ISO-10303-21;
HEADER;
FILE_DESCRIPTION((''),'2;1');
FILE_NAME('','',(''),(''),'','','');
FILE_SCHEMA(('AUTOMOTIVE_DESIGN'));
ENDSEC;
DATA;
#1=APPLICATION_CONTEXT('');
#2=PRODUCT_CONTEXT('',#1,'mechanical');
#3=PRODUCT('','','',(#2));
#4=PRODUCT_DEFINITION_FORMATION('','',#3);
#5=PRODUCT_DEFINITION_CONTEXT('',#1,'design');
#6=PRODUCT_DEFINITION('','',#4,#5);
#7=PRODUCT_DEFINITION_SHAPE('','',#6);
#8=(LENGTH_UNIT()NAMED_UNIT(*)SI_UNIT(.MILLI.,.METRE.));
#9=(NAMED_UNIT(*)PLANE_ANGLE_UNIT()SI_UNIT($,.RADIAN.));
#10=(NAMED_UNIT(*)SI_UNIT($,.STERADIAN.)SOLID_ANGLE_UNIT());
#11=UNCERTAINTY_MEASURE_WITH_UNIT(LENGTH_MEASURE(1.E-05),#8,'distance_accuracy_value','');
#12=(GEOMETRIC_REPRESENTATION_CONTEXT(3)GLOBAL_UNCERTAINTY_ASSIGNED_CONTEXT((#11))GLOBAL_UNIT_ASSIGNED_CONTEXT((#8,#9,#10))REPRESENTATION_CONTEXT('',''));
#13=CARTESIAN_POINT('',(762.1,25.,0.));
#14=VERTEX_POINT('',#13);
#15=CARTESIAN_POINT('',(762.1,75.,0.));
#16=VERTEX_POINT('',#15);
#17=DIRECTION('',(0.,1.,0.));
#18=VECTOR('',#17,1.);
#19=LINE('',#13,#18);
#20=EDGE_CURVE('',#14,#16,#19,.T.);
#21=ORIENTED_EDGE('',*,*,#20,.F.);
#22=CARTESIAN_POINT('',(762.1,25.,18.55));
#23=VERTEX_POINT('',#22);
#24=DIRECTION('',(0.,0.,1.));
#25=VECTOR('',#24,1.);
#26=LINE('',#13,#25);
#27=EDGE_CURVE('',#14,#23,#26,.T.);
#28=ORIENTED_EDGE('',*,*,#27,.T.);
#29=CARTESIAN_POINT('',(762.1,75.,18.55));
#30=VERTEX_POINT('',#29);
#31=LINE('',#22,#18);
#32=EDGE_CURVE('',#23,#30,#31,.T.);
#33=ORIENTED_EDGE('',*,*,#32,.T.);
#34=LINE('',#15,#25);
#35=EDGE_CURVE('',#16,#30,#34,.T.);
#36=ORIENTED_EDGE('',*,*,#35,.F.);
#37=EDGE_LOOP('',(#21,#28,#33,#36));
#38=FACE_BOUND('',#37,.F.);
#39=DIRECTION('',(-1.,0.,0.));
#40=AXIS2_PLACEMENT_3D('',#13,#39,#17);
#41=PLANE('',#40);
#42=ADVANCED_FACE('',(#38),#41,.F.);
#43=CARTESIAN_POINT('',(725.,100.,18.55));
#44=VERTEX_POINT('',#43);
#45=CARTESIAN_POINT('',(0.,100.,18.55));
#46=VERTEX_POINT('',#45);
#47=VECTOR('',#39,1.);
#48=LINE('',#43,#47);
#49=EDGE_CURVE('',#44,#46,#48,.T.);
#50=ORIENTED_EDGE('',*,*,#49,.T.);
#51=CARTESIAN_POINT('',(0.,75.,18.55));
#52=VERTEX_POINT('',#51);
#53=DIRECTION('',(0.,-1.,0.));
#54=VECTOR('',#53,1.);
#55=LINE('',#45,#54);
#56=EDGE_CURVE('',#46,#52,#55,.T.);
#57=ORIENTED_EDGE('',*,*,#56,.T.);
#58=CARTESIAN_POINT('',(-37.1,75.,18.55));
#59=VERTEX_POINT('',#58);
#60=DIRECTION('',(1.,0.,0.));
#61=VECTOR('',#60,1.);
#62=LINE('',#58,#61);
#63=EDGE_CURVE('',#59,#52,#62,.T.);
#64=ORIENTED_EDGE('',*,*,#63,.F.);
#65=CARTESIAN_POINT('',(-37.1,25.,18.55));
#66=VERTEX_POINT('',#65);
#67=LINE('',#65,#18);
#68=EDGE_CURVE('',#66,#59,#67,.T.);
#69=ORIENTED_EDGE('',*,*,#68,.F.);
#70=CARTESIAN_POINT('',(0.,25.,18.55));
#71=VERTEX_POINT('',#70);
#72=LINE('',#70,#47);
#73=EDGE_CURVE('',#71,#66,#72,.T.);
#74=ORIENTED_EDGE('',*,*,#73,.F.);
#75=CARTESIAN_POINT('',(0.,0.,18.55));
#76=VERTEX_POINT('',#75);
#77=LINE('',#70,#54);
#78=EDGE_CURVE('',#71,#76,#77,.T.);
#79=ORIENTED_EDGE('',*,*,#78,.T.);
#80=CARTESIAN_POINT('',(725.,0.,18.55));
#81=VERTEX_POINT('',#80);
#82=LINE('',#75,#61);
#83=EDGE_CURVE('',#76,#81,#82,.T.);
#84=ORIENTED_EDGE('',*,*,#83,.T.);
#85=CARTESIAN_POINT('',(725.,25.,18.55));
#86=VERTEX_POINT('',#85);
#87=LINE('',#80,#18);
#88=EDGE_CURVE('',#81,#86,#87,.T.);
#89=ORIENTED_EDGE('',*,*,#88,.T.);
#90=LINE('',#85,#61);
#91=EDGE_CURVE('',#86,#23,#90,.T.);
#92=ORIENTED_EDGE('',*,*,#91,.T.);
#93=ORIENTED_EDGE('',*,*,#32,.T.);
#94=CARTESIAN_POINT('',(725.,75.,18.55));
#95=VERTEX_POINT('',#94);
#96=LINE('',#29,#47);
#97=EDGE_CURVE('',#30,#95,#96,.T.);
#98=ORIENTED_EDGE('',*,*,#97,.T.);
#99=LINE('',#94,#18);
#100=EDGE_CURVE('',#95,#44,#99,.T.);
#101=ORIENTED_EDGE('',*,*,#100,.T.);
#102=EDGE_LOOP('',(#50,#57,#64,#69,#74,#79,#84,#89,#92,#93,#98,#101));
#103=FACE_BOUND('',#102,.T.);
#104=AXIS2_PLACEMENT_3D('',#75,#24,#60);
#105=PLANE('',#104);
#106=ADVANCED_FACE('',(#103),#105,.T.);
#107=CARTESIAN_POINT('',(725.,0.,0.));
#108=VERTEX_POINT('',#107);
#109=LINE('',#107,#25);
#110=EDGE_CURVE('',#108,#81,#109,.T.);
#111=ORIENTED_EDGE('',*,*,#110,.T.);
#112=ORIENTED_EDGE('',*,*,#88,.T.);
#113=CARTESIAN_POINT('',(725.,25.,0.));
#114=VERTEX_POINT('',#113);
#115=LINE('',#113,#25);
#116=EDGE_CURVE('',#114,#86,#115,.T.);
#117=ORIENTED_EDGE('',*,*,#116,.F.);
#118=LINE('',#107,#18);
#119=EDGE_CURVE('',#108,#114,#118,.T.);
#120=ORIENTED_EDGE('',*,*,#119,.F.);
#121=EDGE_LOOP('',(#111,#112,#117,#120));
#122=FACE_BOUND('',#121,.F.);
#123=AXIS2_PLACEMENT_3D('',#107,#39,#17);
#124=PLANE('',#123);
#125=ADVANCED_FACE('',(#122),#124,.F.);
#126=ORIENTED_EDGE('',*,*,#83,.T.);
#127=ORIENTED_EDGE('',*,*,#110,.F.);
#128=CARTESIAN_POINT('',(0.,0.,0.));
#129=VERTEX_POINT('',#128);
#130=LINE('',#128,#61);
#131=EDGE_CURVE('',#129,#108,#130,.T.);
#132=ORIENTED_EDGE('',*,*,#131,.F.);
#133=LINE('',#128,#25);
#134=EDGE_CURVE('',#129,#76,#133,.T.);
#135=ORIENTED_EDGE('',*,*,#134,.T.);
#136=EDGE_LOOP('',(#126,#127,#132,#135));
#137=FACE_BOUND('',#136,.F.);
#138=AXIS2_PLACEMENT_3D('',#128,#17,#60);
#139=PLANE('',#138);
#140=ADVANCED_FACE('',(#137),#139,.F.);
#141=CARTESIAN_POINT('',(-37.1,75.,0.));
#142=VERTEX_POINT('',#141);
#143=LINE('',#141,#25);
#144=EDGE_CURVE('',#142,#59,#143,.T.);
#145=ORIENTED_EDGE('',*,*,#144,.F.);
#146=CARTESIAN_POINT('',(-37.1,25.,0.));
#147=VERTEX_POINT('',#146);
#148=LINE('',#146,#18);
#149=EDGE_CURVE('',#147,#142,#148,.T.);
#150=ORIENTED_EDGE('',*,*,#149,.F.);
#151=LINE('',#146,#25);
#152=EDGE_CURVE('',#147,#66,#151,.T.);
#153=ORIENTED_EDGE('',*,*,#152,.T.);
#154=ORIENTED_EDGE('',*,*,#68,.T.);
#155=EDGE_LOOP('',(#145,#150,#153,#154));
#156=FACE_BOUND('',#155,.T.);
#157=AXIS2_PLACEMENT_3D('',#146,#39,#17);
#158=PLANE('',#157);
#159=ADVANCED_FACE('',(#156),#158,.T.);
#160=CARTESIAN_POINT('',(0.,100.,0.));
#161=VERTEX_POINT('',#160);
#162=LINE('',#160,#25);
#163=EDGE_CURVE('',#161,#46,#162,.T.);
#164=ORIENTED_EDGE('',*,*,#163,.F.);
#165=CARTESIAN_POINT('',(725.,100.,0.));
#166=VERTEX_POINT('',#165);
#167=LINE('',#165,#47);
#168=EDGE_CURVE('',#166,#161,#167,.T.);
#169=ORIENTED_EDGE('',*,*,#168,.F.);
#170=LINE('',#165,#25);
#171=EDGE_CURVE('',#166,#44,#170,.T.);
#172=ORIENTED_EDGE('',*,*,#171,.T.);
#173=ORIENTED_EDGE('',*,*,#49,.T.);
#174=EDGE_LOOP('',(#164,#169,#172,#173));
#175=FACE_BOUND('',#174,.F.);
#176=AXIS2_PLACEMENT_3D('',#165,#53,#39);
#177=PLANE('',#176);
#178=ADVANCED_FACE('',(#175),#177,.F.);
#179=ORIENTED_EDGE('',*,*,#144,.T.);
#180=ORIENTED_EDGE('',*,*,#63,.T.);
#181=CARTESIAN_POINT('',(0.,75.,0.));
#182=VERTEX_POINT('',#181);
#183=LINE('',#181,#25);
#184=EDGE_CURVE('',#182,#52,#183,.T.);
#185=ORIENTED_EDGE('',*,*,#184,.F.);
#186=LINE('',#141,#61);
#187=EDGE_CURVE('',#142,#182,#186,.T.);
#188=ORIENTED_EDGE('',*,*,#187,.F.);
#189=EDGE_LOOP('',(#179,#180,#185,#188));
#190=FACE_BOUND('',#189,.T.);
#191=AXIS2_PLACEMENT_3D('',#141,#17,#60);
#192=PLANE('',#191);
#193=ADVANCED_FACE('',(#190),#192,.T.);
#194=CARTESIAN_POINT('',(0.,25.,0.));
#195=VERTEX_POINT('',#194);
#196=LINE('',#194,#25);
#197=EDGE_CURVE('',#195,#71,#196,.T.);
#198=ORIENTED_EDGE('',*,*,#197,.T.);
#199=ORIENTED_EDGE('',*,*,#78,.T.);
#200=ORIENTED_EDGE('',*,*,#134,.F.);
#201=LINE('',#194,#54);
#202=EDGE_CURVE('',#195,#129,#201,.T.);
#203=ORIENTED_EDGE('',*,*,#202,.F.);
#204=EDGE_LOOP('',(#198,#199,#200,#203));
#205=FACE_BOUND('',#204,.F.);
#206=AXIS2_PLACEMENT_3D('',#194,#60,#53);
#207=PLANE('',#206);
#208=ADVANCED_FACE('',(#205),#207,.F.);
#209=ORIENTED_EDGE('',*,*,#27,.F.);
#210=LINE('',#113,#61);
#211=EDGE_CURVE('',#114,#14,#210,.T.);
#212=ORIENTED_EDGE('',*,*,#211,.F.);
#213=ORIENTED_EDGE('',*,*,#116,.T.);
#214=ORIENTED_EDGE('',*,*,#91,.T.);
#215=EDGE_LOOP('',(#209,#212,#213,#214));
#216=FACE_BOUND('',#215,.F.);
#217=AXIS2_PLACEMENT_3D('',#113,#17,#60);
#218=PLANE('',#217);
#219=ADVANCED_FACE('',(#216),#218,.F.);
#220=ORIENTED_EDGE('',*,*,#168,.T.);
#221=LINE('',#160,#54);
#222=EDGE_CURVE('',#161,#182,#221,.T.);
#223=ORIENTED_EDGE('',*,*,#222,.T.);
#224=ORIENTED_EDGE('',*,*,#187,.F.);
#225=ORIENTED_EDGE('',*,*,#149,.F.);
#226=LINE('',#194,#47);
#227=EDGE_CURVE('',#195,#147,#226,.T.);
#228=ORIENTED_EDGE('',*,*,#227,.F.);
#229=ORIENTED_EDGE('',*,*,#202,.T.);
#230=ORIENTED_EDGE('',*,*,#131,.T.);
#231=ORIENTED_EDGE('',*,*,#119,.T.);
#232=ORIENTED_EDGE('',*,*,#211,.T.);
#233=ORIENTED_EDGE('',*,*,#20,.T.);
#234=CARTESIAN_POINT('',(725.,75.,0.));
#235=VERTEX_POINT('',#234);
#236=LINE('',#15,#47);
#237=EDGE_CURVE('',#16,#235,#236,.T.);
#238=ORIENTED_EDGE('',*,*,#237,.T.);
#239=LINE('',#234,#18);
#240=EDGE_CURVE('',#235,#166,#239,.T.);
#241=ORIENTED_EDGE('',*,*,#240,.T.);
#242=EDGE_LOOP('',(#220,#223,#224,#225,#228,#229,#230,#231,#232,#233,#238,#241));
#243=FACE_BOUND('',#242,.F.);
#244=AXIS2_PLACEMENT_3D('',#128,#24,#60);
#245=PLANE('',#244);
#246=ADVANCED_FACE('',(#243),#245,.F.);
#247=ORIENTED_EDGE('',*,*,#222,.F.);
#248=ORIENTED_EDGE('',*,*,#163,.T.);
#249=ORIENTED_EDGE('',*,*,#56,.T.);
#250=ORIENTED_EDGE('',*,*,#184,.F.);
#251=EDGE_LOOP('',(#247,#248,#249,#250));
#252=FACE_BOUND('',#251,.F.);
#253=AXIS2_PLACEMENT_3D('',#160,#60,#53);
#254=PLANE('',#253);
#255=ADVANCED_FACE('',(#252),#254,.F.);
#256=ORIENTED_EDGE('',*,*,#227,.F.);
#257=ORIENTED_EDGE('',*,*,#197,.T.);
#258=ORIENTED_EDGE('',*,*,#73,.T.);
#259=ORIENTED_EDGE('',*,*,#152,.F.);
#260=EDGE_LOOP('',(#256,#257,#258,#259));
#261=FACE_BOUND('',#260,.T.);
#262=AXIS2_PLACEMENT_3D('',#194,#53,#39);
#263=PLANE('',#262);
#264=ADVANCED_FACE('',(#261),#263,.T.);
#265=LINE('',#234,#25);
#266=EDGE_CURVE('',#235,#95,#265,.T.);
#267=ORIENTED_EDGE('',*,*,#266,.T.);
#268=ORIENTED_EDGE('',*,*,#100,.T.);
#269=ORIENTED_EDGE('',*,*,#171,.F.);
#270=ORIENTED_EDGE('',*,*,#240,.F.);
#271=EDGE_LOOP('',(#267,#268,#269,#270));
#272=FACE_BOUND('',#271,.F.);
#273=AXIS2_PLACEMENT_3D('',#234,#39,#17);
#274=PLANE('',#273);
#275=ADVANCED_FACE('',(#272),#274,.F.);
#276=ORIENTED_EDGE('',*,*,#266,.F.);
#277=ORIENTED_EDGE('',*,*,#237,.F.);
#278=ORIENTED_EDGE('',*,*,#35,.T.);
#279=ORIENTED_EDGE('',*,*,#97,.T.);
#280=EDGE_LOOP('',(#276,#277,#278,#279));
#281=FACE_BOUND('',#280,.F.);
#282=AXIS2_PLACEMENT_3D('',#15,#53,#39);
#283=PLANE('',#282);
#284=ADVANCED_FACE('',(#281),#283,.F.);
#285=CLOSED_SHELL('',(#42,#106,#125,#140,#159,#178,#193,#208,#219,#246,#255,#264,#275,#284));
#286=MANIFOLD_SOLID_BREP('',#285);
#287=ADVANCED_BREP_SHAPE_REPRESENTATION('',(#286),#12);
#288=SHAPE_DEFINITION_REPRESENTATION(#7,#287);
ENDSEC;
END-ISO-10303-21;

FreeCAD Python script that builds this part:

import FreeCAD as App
import Part
import Sketcher


def add_polygon(sketch, points):
    """Adds a closed chain of lines whose ends are joined by coincident constraints."""
    first, n = sketch.GeometryCount, len(points)
    for a, b in zip(points, points[1:] + points[:1]):
        sketch.addGeometry(Part.LineSegment(App.Vector(*a, 0), App.Vector(*b, 0)), False)
    for i in range(n):
        sketch.addConstraint(Sketcher.Constraint("Coincident", first + i, 2, first + (i + 1) % n, 1))

doc = App.newDocument("Part")
body = doc.addObject("PartDesign::Body", "Body")

# Sketch on XY plane
sketch1 = doc.addObject("Sketcher::SketchObject", "Sketch")
body.addObject(sketch1)
sketch1.AttachmentSupport = (doc.XY_Plane, [""])
sketch1.MapMode = "FlatFace"
add_polygon(sketch1, [(0, 25), (0, 0), (725, 0), (725, 25), (762, 25), (762, 75), (725, 75), (725, 100), (0, 100), (0, 75), (-37, 75), (-37, 25)])  # lines 0-11
sketch1.addConstraint([
    Sketcher.Constraint("Vertical", 0),
    Sketcher.Constraint("Horizontal", 1),
    Sketcher.Constraint("Vertical", 2),
    Sketcher.Constraint("Horizontal", 3),
    Sketcher.Constraint("Vertical", 4),
    Sketcher.Constraint("Horizontal", 5),
    Sketcher.Constraint("Vertical", 6),
    Sketcher.Constraint("Horizontal", 7),
    Sketcher.Constraint("Vertical", 8),
    Sketcher.Constraint("Horizontal", 9),
    Sketcher.Constraint("Vertical", 10),
    Sketcher.Constraint("Horizontal", 11),
    Sketcher.Constraint("Coincident", 0, 2, -1, 1),
    Sketcher.Constraint("PointOnObject", 7, 2, -2),
    Sketcher.Constraint("Horizontal", 5, 2, 8, 2),
    Sketcher.Constraint("Horizontal", 3, 2, 10, 2),
    Sketcher.Constraint("Vertical", 2, 2, 5, 2),
    Sketcher.Constraint("Equal", 5, 9),
    Sketcher.Constraint("Equal", 2, 6),
    Sketcher.Constraint("DistanceX", 1, 1, 1, 2, 725.0),
    Sketcher.Constraint("DistanceY", 0, 2, 0, 1, 25.0),
    Sketcher.Constraint("DistanceX", 3, 1, 3, 2, 37.1),
    Sketcher.Constraint("DistanceY", -1, 1, 6, 2, 100.0),
])
pad1 = doc.addObject("PartDesign::Pad", "Pad")
body.addObject(pad1)
pad1.Profile = sketch1
pad1.Length = 18.55

doc.recompute()
